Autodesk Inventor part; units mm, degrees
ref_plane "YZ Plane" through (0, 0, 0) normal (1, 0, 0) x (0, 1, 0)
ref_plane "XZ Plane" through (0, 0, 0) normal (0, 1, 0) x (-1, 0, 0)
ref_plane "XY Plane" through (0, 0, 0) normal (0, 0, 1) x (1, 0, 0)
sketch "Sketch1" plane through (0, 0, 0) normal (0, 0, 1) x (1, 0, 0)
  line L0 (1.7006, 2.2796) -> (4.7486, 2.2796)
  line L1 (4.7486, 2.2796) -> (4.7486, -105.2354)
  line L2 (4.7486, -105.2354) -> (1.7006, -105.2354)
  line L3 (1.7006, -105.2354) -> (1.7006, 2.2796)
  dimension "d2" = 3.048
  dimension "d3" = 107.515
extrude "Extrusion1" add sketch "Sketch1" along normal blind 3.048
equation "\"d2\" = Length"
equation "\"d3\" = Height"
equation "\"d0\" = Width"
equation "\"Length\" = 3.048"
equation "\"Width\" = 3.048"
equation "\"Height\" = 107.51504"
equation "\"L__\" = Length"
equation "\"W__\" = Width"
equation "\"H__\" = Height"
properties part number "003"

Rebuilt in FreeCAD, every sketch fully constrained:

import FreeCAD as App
import Part
import Sketcher
from FreeCAD import Vector
Q = App.Units.Quantity


def add_polygon(sketch, points):
    """Adds a closed chain of lines whose ends are joined by coincident constraints."""
    first, n = sketch.GeometryCount, len(points)
    for a, b in zip(points, points[1:] + points[:1]):
        sketch.addGeometry(Part.LineSegment(App.Vector(*a, 0), App.Vector(*b, 0)), False)
    for i in range(n):
        sketch.addConstraint(Sketcher.Constraint("Coincident", first + i, 2, first + (i + 1) % n, 1))

doc = App.newDocument("Part")
params = doc.addObject("Spreadsheet::Sheet", "Params")
for row, (alias, value) in enumerate([
    ("sketch1_width", "0.12 in"),
    ("pad1_length", "0.12 in"),
], start=1):
    params.set(f"A{row}", alias)
    params.set(f"B{row}", "=" + value)
    params.setAlias(f"B{row}", alias)

body = doc.addObject("PartDesign::Body", "Body")

# Sketch on XY plane
sketch1 = body.newObject("Sketcher::SketchObject", "Sketch")
sketch1.AttachmentSupport = (doc.getObject("XY_Plane"), [""])
sketch1.MapMode = "FlatFace"
add_polygon(sketch1, [(4.7486, 2.2796), (1.7006, 2.2796), (1.7006, -105.2354), (4.7486, -105.2354)])  # lines 0-3
sketch1.addConstraint(Sketcher.Constraint("Horizontal", 0))
sketch1.addConstraint(Sketcher.Constraint("Vertical", 1))
sketch1.addConstraint(Sketcher.Constraint("Horizontal", 2))
sketch1.addConstraint(Sketcher.Constraint("Vertical", 3))
sketch1.addConstraint(Sketcher.Constraint("DistanceX", 0, 2, 0, 1, Q("0.12 in")))
sketch1.addConstraint(Sketcher.Constraint("DistanceY", 1, 2, 1, 1, Q("107.515 mm")))
sketch1.addConstraint(Sketcher.Constraint("DistanceX", -1, 1, 0, 2, Q("1.7006 mm")))
sketch1.addConstraint(Sketcher.Constraint("DistanceY", -1, 1, 0, 2, Q("2.2796 mm")))
sketch1.setExpression("Constraints[8]", "Params.sketch1_width")
pad1 = body.newObject("PartDesign::Pad", "Pad")
pad1.Profile = sketch1
pad1.setExpression("Length", "Params.pad1_length")

doc.recompute()
